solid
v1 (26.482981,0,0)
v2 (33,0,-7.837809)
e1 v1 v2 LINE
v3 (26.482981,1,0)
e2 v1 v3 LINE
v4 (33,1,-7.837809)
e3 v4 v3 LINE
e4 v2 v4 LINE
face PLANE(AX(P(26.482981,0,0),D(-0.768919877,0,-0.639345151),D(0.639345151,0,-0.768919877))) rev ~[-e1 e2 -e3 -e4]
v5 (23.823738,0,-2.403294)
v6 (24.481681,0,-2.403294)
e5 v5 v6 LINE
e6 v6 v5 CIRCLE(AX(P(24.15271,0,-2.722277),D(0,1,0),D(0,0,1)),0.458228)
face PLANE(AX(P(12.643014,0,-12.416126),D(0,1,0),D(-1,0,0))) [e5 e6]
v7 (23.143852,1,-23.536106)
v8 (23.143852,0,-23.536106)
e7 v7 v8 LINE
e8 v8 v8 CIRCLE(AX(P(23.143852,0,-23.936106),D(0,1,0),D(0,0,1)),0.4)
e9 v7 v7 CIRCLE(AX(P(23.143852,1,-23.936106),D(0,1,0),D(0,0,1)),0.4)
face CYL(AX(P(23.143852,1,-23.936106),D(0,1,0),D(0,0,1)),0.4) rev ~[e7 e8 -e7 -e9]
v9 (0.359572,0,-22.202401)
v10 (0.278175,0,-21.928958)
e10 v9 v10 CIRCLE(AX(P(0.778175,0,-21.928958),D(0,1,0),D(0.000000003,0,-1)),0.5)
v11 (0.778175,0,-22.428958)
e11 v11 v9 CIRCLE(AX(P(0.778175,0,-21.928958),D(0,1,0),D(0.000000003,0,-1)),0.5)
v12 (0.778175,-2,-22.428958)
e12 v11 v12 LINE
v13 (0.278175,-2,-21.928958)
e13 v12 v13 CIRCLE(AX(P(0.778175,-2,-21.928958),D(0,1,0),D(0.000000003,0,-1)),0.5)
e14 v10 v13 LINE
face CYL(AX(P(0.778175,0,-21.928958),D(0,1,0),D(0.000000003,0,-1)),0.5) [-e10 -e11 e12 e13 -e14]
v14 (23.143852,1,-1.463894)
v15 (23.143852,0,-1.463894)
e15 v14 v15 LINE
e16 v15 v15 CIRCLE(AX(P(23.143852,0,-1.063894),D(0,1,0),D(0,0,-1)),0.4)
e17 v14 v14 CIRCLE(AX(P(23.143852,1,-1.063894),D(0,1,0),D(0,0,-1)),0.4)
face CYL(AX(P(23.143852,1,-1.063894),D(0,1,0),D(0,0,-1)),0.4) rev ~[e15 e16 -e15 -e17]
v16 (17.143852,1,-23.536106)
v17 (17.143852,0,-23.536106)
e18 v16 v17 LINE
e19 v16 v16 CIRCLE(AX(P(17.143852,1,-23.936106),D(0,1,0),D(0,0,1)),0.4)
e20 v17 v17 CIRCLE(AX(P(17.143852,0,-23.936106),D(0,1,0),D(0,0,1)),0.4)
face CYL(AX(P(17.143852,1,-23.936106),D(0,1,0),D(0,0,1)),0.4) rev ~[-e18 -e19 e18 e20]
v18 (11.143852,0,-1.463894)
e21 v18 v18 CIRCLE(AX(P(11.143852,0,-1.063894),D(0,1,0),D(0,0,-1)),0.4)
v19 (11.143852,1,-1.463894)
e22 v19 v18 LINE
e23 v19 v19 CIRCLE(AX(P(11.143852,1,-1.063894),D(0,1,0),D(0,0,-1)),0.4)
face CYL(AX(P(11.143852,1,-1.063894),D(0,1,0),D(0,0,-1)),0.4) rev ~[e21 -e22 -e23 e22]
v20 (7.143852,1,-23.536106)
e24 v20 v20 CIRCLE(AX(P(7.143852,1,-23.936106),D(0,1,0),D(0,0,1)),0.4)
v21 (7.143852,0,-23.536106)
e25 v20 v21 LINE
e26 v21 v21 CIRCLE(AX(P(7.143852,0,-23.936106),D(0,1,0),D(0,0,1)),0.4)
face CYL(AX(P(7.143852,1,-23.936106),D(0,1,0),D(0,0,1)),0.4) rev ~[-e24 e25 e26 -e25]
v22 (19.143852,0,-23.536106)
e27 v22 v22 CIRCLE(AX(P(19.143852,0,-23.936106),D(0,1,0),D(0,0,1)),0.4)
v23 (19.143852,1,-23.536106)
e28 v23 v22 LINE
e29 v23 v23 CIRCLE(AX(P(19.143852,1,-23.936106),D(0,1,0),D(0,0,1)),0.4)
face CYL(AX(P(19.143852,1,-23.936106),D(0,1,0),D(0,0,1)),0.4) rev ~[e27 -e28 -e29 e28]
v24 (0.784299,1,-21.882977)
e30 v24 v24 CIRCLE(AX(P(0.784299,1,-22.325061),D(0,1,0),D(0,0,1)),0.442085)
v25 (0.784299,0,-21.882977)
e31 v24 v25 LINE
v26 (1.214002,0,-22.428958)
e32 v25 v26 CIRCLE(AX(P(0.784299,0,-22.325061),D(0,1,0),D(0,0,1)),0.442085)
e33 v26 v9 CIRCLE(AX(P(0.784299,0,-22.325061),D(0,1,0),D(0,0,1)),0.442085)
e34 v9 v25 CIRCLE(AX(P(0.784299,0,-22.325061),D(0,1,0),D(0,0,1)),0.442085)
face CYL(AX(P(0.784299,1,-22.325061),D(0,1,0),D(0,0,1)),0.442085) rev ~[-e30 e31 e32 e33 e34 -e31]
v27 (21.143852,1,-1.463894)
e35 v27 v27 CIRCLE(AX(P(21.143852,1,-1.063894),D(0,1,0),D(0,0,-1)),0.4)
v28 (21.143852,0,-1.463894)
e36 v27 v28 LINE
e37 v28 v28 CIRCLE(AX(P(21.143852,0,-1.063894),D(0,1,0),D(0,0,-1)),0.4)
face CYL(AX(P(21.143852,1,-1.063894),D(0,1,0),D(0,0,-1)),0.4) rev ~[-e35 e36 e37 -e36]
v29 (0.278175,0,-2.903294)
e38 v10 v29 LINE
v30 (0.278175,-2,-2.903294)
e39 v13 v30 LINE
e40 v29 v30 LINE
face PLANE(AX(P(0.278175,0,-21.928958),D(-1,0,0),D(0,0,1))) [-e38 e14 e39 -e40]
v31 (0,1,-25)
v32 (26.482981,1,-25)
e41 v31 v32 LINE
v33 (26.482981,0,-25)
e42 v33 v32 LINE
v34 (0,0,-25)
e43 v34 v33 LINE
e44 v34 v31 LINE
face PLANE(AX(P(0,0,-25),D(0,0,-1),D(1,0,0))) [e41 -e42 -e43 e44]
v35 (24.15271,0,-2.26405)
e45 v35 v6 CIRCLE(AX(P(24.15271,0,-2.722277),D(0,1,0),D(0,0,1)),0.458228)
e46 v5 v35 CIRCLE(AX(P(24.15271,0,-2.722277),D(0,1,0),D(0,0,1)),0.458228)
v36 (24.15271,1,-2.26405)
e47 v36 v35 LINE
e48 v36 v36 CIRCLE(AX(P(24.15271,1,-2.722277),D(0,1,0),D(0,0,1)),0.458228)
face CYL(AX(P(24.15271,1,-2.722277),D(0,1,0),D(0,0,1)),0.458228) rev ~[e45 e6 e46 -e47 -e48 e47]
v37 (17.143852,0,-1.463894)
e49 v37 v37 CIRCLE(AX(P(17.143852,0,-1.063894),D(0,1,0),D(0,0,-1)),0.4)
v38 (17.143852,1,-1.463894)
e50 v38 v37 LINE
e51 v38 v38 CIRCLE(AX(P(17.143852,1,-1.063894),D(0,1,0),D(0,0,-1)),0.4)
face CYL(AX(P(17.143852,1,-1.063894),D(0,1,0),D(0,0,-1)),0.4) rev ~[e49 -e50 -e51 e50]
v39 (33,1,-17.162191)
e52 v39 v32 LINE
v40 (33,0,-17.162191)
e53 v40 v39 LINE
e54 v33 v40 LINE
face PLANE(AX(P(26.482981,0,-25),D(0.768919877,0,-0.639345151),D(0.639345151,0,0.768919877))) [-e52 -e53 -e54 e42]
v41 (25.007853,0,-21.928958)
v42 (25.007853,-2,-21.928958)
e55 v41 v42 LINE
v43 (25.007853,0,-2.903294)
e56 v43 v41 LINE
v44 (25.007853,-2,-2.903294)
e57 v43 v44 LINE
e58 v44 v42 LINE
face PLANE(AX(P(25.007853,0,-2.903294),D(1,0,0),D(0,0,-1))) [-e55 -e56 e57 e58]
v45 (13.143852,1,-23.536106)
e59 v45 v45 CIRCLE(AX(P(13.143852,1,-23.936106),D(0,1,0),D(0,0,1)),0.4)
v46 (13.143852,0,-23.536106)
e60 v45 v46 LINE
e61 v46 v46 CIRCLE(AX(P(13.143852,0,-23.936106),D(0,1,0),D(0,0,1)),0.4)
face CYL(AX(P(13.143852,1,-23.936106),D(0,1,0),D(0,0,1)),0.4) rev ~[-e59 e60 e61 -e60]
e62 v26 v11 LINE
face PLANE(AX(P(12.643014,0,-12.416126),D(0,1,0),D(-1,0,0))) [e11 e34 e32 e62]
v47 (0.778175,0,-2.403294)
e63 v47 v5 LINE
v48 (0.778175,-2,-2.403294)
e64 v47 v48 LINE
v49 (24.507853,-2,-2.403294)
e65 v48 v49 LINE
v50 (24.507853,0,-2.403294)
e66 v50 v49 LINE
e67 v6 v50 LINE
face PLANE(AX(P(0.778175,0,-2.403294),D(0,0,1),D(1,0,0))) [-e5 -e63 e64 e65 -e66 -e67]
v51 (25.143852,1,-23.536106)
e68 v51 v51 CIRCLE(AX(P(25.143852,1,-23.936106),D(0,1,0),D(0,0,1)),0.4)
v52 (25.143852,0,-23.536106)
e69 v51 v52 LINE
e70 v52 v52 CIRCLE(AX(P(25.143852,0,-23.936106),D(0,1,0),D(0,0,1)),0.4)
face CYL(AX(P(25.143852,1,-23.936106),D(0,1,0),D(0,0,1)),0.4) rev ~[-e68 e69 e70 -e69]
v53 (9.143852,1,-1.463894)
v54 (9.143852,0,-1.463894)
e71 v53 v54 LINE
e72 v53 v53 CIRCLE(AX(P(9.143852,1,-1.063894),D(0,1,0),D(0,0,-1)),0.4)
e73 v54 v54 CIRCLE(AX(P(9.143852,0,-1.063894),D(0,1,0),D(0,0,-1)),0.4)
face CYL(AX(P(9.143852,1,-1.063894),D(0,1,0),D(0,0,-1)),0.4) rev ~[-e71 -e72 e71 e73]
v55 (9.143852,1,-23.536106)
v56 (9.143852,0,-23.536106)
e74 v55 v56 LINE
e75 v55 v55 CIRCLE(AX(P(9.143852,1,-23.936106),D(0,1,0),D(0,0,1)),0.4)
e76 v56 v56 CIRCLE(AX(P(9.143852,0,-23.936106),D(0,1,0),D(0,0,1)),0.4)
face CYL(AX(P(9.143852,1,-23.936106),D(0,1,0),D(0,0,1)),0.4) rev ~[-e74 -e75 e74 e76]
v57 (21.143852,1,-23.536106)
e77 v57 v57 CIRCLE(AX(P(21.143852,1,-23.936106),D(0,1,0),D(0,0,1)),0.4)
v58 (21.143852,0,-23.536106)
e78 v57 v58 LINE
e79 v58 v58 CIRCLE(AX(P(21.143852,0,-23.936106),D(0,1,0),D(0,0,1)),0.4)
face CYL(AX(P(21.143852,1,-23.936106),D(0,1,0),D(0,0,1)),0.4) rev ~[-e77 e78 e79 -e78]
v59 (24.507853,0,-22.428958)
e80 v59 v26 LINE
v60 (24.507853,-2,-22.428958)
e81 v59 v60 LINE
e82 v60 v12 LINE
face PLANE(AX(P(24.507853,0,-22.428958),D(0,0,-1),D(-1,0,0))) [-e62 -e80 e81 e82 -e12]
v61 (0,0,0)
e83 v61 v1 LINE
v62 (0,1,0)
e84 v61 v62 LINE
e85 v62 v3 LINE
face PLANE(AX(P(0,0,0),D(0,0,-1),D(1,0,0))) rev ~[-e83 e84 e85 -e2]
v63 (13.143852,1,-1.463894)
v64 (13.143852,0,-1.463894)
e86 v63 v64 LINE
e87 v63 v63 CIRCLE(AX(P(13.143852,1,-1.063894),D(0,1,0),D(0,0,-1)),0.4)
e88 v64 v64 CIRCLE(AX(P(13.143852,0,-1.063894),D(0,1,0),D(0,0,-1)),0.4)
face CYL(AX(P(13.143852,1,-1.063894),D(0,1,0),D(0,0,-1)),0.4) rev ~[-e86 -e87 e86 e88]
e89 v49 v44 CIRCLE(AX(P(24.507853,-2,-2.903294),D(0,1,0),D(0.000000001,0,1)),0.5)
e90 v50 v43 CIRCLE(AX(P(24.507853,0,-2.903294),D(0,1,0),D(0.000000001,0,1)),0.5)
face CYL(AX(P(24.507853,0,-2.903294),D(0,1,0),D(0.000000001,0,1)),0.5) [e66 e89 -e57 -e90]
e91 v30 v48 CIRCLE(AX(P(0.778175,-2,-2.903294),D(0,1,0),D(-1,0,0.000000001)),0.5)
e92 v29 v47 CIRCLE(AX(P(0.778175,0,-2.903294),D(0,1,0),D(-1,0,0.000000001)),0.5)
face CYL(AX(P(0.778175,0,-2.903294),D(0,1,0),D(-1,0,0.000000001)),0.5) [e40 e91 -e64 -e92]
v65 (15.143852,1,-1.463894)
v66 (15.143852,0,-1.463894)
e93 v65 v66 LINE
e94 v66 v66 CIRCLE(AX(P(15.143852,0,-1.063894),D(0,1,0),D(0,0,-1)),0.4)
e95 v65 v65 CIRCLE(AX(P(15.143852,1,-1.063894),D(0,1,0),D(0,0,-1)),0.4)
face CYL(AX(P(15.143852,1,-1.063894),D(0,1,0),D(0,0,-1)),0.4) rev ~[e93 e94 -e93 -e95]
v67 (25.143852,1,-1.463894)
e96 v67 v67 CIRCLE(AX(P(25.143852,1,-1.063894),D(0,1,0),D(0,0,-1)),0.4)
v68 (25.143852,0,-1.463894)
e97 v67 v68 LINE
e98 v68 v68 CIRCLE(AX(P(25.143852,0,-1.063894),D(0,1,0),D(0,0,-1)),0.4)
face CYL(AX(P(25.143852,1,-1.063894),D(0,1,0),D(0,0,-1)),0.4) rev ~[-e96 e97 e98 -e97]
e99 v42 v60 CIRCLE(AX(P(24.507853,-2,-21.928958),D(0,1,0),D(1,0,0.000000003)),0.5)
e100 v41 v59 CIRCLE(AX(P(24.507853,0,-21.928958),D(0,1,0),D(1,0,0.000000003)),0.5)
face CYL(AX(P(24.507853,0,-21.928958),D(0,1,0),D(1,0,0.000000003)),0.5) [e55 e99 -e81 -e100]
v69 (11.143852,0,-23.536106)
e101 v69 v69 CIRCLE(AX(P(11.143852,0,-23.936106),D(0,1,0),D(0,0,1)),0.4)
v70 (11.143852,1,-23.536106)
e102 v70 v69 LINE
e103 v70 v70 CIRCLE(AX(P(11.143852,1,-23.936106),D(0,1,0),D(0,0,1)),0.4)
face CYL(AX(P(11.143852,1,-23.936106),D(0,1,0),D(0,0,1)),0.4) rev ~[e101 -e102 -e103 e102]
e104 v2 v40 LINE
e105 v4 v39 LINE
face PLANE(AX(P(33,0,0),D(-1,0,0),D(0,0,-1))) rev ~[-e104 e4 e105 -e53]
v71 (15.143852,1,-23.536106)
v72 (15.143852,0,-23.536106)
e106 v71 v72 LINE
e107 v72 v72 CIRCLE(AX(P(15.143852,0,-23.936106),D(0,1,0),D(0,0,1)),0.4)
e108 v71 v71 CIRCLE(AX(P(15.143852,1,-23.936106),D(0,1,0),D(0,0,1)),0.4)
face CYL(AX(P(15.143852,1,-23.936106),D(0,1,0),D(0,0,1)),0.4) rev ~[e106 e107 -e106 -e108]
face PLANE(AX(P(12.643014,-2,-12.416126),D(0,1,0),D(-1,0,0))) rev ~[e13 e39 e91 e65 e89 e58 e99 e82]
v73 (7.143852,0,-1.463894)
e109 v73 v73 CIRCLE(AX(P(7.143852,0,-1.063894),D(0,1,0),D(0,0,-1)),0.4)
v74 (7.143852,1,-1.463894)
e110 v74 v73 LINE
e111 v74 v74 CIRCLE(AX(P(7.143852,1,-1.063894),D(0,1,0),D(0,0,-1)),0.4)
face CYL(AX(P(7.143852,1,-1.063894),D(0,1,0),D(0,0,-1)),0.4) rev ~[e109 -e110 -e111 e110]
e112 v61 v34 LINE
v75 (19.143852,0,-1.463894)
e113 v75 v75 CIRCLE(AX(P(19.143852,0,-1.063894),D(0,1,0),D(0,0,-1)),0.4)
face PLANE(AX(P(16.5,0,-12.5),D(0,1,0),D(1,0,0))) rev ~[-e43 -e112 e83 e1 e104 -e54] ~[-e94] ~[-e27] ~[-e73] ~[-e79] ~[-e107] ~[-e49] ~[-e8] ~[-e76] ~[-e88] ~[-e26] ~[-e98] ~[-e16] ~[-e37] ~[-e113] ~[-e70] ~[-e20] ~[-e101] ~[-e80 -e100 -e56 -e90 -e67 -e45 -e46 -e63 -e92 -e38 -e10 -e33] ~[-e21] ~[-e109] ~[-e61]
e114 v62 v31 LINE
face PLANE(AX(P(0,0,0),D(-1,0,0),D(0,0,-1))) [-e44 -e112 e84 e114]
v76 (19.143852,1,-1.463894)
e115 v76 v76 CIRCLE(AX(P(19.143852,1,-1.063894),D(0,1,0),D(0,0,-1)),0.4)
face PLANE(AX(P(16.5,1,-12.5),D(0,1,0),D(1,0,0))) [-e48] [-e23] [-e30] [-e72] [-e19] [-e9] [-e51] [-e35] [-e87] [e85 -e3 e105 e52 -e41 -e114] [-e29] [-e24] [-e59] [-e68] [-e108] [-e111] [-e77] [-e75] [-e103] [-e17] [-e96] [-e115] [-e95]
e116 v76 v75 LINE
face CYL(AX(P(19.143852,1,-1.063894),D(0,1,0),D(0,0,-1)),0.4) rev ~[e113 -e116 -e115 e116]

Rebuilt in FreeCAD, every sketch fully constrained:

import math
import FreeCAD as App
import Part
import Sketcher
from FreeCAD import Vector

doc = App.newDocument("Part")
body = doc.addObject("PartDesign::Body", "Body")

# Sketch on XZ plane
sketch1 = body.newObject("Sketcher::SketchObject", "Sketch")
sketch1.AttachmentSupport = (doc.getObject("XZ_Plane"), [""])
sketch1.MapMode = "FlatFace"
sketch1.addGeometry([
    Part.LineSegment(Vector(0, -25, 0), Vector(0, 0, 0)),
    Part.LineSegment(Vector(0, 0, 0), Vector(33, 0, 0)),
    Part.LineSegment(Vector(33, 0, 0), Vector(33, -25, 0)),
    Part.LineSegment(Vector(33, -25, 0), Vector(0, -25, 0)),
], False)
sketch1.addConstraint([
    Sketcher.Constraint("Coincident", 0, 2, 1, 1),
    Sketcher.Constraint("Coincident", 1, 2, 2, 1),
    Sketcher.Constraint("Coincident", 2, 2, 3, 1),
    Sketcher.Constraint("Coincident", 3, 2, 0, 1),
    Sketcher.Constraint("Vertical", 0),
    Sketcher.Constraint("Horizontal", 1),
    Sketcher.Constraint("Vertical", 2),
    Sketcher.Constraint("Horizontal", 3),
    Sketcher.Constraint("Coincident", 0, 2, -1, 1),
    Sketcher.Constraint("DistanceX", 1, 1, 1, 2, 33.0),
    Sketcher.Constraint("DistanceY", 0, 1, 0, 2, 25.0),
])
pad1 = body.newObject("PartDesign::Pad", "Pad")
pad1.Profile = sketch1
pad1.Length = 1
pad1.Reversed = True

# Sketch on XZ plane
sketch2 = body.newObject("Sketcher::SketchObject", "Sketch001")
sketch2.AttachmentSupport = (doc.getObject("XZ_Plane"), [""])
sketch2.MapMode = "FlatFace"
sketch2.addGeometry([
    Part.LineSegment(Vector(33, 0, 0), Vector(26, 0, 0)),  # 0
    Part.LineSegment(Vector(26, 0, 0), Vector(33, -8, 0)),  # 1
    Part.LineSegment(Vector(33, -8, 0), Vector(33, 0, 0)),  # 2
    Part.LineSegment(Vector(33, -25, 0), Vector(33, -17, 0)),  # 3
    Part.LineSegment(Vector(33, -17, 0), Vector(26, -25, 0)),  # 4
    Part.LineSegment(Vector(26, -25, 0), Vector(33, -25, 0)),  # 5
], False)
sketch2.addConstraint([
    Sketcher.Constraint("Coincident", 0, 2, 1, 1),
    Sketcher.Constraint("Coincident", 1, 2, 2, 1),
    Sketcher.Constraint("Coincident", 2, 2, 0, 1),
    Sketcher.Constraint("Coincident", 3, 2, 4, 1),
    Sketcher.Constraint("Coincident", 4, 2, 5, 1),
    Sketcher.Constraint("Coincident", 5, 2, 3, 1),
    Sketcher.Constraint("Horizontal", 0),
    Sketcher.Constraint("Vertical", 2),
    Sketcher.Constraint("Vertical", 3),
    Sketcher.Constraint("Horizontal", 5),
    Sketcher.Constraint("PointOnObject", 0, 2, -1),
    Sketcher.Constraint("Vertical", 2, 2, 3, 2),
    Sketcher.Constraint("Vertical", 0, 2, 4, 2),
    Sketcher.Constraint("Equal", 2, 3),
    Sketcher.Constraint("DistanceX", -1, 1, 1, 2, 33.0),
    Sketcher.Constraint("DistanceY", 4, 2, -1, 1, 25.0),
    Sketcher.Constraint("DistanceX", 0, 2, 0, 1, 6.517019),
    Sketcher.Constraint("DistanceY", 2, 1, 2, 2, 7.837809),
])
pocket1 = body.newObject("PartDesign::Pocket", "Pocket")
pocket1.Profile = sketch2
pocket1.Type = "ThroughAll"

# Sketch on XZ plane
sketch3 = body.newObject("Sketcher::SketchObject", "Sketch002")
sketch3.AttachmentSupport = (doc.getObject("XZ_Plane"), [""])
sketch3.MapMode = "FlatFace"
sketch3.AttachmentOffset = App.Placement(Vector(0, 0, -1), App.Rotation())
sketch3.addGeometry([
    Part.Circle(Vector(7.14, -23.94, 0), Vector(0, 0, 1), 0.4),  # 0
    Part.Circle(Vector(9.14, -23.94, 0), Vector(0, 0, 1), 0.4),  # 1
    Part.Circle(Vector(11.14, -23.94, 0), Vector(0, 0, 1), 0.4),  # 2
    Part.Circle(Vector(13.14, -23.94, 0), Vector(0, 0, 1), 0.4),  # 3
    Part.Circle(Vector(15.14, -23.94, 0), Vector(0, 0, 1), 0.4),  # 4
    Part.Circle(Vector(17.14, -23.94, 0), Vector(0, 0, 1), 0.4),  # 5
    Part.Circle(Vector(19.14, -23.94, 0), Vector(0, 0, 1), 0.4),  # 6
    Part.Circle(Vector(21.14, -23.94, 0), Vector(0, 0, 1), 0.4),  # 7
    Part.Circle(Vector(23.14, -23.94, 0), Vector(0, 0, 1), 0.4),  # 8
    Part.Circle(Vector(25.14, -23.94, 0), Vector(0, 0, 1), 0.4),  # 9
    Part.Circle(Vector(25.14, -1.06, 0), Vector(0, 0, 1), 0.4),  # 10
    Part.Circle(Vector(23.14, -1.06, 0), Vector(0, 0, 1), 0.4),  # 11
    Part.Circle(Vector(21.14, -1.06, 0), Vector(0, 0, 1), 0.4),  # 12
    Part.Circle(Vector(19.14, -1.06, 0), Vector(0, 0, 1), 0.4),  # 13
    Part.Circle(Vector(17.14, -1.06, 0), Vector(0, 0, 1), 0.4),  # 14
    Part.Circle(Vector(15.14, -1.06, 0), Vector(0, 0, 1), 0.4),  # 15
    Part.Circle(Vector(13.14, -1.06, 0), Vector(0, 0, 1), 0.4),  # 16
    Part.Circle(Vector(11.14, -1.06, 0), Vector(0, 0, 1), 0.4),  # 17
    Part.Circle(Vector(9.14, -1.06, 0), Vector(0, 0, 1), 0.4),  # 18
    Part.Circle(Vector(7.14, -1.06, 0), Vector(0, 0, 1), 0.4),  # 19
    Part.Circle(Vector(0.78, -22.33, 0), Vector(0, 0, 1), 0.44),  # 20
    Part.Circle(Vector(24.15, -2.72, 0), Vector(0, 0, 1), 0.46),  # 21
], False)
sketch3.addConstraint([
    Sketcher.Constraint("Equal", 0, 1),
    Sketcher.Constraint("Equal", 1, 2),
    Sketcher.Constraint("Equal", 2, 3),
    Sketcher.Constraint("Equal", 3, 4),
    Sketcher.Constraint("Equal", 4, 5),
    Sketcher.Constraint("Equal", 5, 6),
    Sketcher.Constraint("Equal", 6, 7),
    Sketcher.Constraint("Equal", 7, 8),
    Sketcher.Constraint("Equal", 8, 9),
    Sketcher.Constraint("Equal", 9, 10),
    Sketcher.Constraint("Equal", 10, 11),
    Sketcher.Constraint("Equal", 11, 12),
    Sketcher.Constraint("Equal", 12, 13),
    Sketcher.Constraint("Equal", 13, 14),
    Sketcher.Constraint("Equal", 14, 15),
    Sketcher.Constraint("Equal", 15, 16),
    Sketcher.Constraint("Equal", 16, 17),
    Sketcher.Constraint("Equal", 17, 18),
    Sketcher.Constraint("Equal", 18, 19),
    Sketcher.Constraint("Horizontal", 0, 3, 1, 3),
    Sketcher.Constraint("Horizontal", 1, 3, 2, 3),
    Sketcher.Constraint("Horizontal", 2, 3, 3, 3),
    Sketcher.Constraint("Horizontal", 3, 3, 4, 3),
    Sketcher.Constraint("Horizontal", 4, 3, 5, 3),
    Sketcher.Constraint("Horizontal", 5, 3, 6, 3),
    Sketcher.Constraint("Horizontal", 6, 3, 7, 3),
    Sketcher.Constraint("Horizontal", 7, 3, 8, 3),
    Sketcher.Constraint("Horizontal", 8, 3, 9, 3),
    Sketcher.Constraint("Horizontal", 10, 3, 11, 3),
    Sketcher.Constraint("Horizontal", 11, 3, 12, 3),
    Sketcher.Constraint("Horizontal", 12, 3, 13, 3),
    Sketcher.Constraint("Horizontal", 13, 3, 14, 3),
    Sketcher.Constraint("Horizontal", 14, 3, 15, 3),
    Sketcher.Constraint("Horizontal", 15, 3, 16, 3),
    Sketcher.Constraint("Horizontal", 16, 3, 17, 3),
    Sketcher.Constraint("Horizontal", 17, 3, 18, 3),
    Sketcher.Constraint("Horizontal", 18, 3, 19, 3),
    Sketcher.Constraint("Vertical", 9, 3, 10, 3),
    Sketcher.Constraint("Vertical", 8, 3, 11, 3),
    Sketcher.Constraint("Vertical", 7, 3, 12, 3),
    Sketcher.Constraint("Vertical", 6, 3, 13, 3),
    Sketcher.Constraint("Vertical", 5, 3, 14, 3),
    Sketcher.Constraint("Vertical", 4, 3, 15, 3),
    Sketcher.Constraint("Vertical", 3, 3, 16, 3),
    Sketcher.Constraint("Vertical", 2, 3, 17, 3),
    Sketcher.Constraint("Vertical", 1, 3, 18, 3),
    Sketcher.Constraint("Vertical", 0, 3, 19, 3),
    Sketcher.Constraint("Diameter", 0, 0.8),
    Sketcher.Constraint("DistanceX", 0, 3, 1, 3, 2.0),
    Sketcher.Constraint("DistanceX", 1, 3, 2, 3, 2.0),
    Sketcher.Constraint("DistanceX", 2, 3, 3, 3, 2.0),
    Sketcher.Constraint("DistanceX", 3, 3, 4, 3, 2.0),
    Sketcher.Constraint("DistanceX", 4, 3, 5, 3, 2.0),
    Sketcher.Constraint("DistanceX", 5, 3, 6, 3, 2.0),
    Sketcher.Constraint("DistanceX", 6, 3, 7, 3, 2.0),
    Sketcher.Constraint("DistanceX", 7, 3, 8, 3, 2.0),
    Sketcher.Constraint("DistanceX", 8, 3, 9, 3, 2.0),
    Sketcher.Constraint("Diameter", 20, 0.88417),
    Sketcher.Constraint("Diameter", 21, 0.916455),
    Sketcher.Constraint("DistanceX", -1, 1, 20, 3, 0.784299),
    Sketcher.Constraint("DistanceY", 20, 3, -1, 1, 22.325061),
    Sketcher.Constraint("DistanceX", -1, 1, 21, 3, 24.15271),
    Sketcher.Constraint("DistanceX", -1, 1, 0, 3, 7.143852),
    Sketcher.Constraint("DistanceY", 0, 3, -1, 1, 23.936106),
    Sketcher.Constraint("DistanceY", 10, 3, -1, 1, 1.063894),
    Sketcher.Constraint("DistanceY", 21, 3, -1, 1, 2.722277),
])
pocket2 = body.newObject("PartDesign::Pocket", "Pocket001")
pocket2.Profile = sketch3
pocket2.Type = "ThroughAll"
pocket2.Reversed = True

# Sketch on XZ plane
sketch4 = body.newObject("Sketcher::SketchObject", "Sketch003")
sketch4.AttachmentSupport = (doc.getObject("XZ_Plane"), [""])
sketch4.MapMode = "FlatFace"
sketch4.addGeometry([
    Part.LineSegment(Vector(0.78, -22.43, 0), Vector(24.51, -22.43, 0)),  # 0
    Part.ArcOfCircle(Part.Circle(Vector(24.51, -21.93, 0), Vector(0, 0, 1), 0.5), math.radians(-90), math.radians(0)),  # 1
    Part.LineSegment(Vector(25.01, -21.93, 0), Vector(25.01, -2.9, 0)),  # 2
    Part.ArcOfCircle(Part.Circle(Vector(24.51, -2.9, 0), Vector(0, 0, 1), 0.5), math.radians(0), math.radians(90)),  # 3
    Part.LineSegment(Vector(24.51, -2.4, 0), Vector(0.78, -2.4, 0)),  # 4
    Part.ArcOfCircle(Part.Circle(Vector(0.78, -2.9, 0), Vector(0, 0, 1), 0.5), math.radians(90), math.radians(180)),  # 5
    Part.LineSegment(Vector(0.28, -2.9, 0), Vector(0.28, -21.93, 0)),  # 6
    Part.ArcOfCircle(Part.Circle(Vector(0.78, -21.93, 0), Vector(0, 0, 1), 0.5), math.radians(180), math.radians(270)),  # 7
], False)
sketch4.addConstraint([
    Sketcher.Constraint("Tangent", 0, 2, 1, 1),
    Sketcher.Constraint("Tangent", 1, 2, 2, 1),
    Sketcher.Constraint("Tangent", 2, 2, 3, 1),
    Sketcher.Constraint("Tangent", 3, 2, 4, 1),
    Sketcher.Constraint("Tangent", 4, 2, 5, 1),
    Sketcher.Constraint("Tangent", 5, 2, 6, 1),
    Sketcher.Constraint("Tangent", 6, 2, 7, 1),
    Sketcher.Constraint("Tangent", 7, 2, 0, 1),
    Sketcher.Constraint("Horizontal", 0),
    Sketcher.Constraint("Vertical", 2),
    Sketcher.Constraint("Horizontal", 4),
    Sketcher.Constraint("Vertical", 6),
    Sketcher.Constraint("Equal", 1, 3),
    Sketcher.Constraint("Equal", 3, 5),
    Sketcher.Constraint("Equal", 5, 7),
    Sketcher.Constraint("Radius", 1, 0.5),
    Sketcher.Constraint("DistanceX", 0, 1, 0, 2, 23.729678),
    Sketcher.Constraint("DistanceY", 2, 1, 2, 2, 19.025663),
    Sketcher.Constraint("DistanceX", -1, 1, 1, 3, 24.507853),
    Sketcher.Constraint("DistanceY", 1, 3, -1, 1, 21.928958),
])
pad2 = body.newObject("PartDesign::Pad", "Pad001")
pad2.Profile = sketch4
pad2.Length = 2

doc.recompute()
